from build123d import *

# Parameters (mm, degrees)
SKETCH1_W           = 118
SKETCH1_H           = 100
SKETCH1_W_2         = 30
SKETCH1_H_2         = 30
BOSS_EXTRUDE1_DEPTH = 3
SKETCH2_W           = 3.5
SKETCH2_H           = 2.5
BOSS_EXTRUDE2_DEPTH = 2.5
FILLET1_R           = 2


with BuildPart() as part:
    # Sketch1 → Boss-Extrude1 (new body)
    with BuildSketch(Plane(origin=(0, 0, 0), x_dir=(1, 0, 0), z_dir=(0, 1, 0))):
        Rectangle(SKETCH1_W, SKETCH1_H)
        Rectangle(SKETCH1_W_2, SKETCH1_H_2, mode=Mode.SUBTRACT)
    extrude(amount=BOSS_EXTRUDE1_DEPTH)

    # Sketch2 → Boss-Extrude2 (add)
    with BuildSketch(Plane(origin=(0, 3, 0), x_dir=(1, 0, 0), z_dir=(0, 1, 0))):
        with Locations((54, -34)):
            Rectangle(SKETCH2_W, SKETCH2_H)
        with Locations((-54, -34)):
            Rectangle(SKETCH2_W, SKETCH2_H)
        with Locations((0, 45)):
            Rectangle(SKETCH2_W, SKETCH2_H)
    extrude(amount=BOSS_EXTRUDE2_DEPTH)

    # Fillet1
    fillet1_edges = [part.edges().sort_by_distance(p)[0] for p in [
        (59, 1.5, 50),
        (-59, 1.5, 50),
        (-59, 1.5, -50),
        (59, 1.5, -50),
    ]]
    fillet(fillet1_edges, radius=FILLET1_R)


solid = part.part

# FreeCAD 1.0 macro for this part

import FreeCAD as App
import Part
import Sketcher
from FreeCAD import Vector
Q = App.Units.Quantity


def edges_at(feature, points):
    """Names of the edges that pass closest to the given points."""
    edges = feature.Shape.Edges
    near = lambda p: min(range(len(edges)), key=lambda i: edges[i].distToShape(Part.Vertex(*p))[0])
    return sorted({f"Edge{near(p) + 1}" for p in points})


def add_polygon(sketch, points):
    """Adds a closed chain of lines whose ends are joined by coincident constraints."""
    first, n = sketch.GeometryCount, len(points)
    for a, b in zip(points, points[1:] + points[:1]):
        sketch.addGeometry(Part.LineSegment(App.Vector(*a, 0), App.Vector(*b, 0)), False)
    for i in range(n):
        sketch.addConstraint(Sketcher.Constraint("Coincident", first + i, 2, first + (i + 1) % n, 1))

doc = App.newDocument("Part")
body = doc.addObject("PartDesign::Body", "Body")

sketch1 = doc.addObject("Sketcher::SketchObject", "Sketch")
body.addObject(sketch1)
sketch1.AttachmentSupport = (doc.XZ_Plane, [""])
sketch1.MapMode = "FlatFace"
add_polygon(sketch1, [(-59, -50), (-59, 50), (59, 50), (59, -50)])
add_polygon(sketch1, [(15, 15), (-15, 15), (-15, -15), (15, -15)])
sketch1.addConstraint([
    Sketcher.Constraint("Vertical", 0),
    Sketcher.Constraint("Horizontal", 1),
    Sketcher.Constraint("Vertical", 2),
    Sketcher.Constraint("Horizontal", 3),
    Sketcher.Constraint("Horizontal", 4),
    Sketcher.Constraint("Vertical", 5),
    Sketcher.Constraint("Horizontal", 6),
    Sketcher.Constraint("Vertical", 7),
    Sketcher.Constraint("Symmetric", 0, 2, 2, 2, -1, 1),
    Sketcher.Constraint("Symmetric", 4, 2, 6, 2, -1, 1),
    Sketcher.Constraint("Equal", 6, 5),
    Sketcher.Constraint("DistanceX", 1, 1, 1, 2, Q("118 mm")),
    Sketcher.Constraint("DistanceX", 4, 2, 4, 1, Q("30 mm")),
    Sketcher.Constraint("DistanceY", 0, 1, 0, 2, Q("100 mm")),
])
pad1 = doc.addObject("PartDesign::Pad", "Pad")
body.addObject(pad1)
pad1.Profile = sketch1
pad1.Length = 3
pad1.Reversed = True

sketch2 = doc.addObject("Sketcher::SketchObject", "Sketch001")
body.addObject(sketch2)
sketch2.AttachmentSupport = (doc.XZ_Plane, [""])
sketch2.MapMode = "FlatFace"
sketch2.AttachmentOffset = App.Placement(Vector(0, 0, -3), App.Rotation())
add_polygon(sketch2, [(52.25, 32.75), (52.25, 35.25), (55.75, 35.25), (55.75, 32.75)])
add_polygon(sketch2, [(-55.75, 32.75), (-55.75, 35.25), (-52.25, 35.25), (-52.25, 32.75)])
add_polygon(sketch2, [(-1.75, -46.25), (-1.75, -43.75), (1.75, -43.75), (1.75, -46.25)])
sketch2.addConstraint([
    Sketcher.Constraint("Vertical", 0),
    Sketcher.Constraint("Horizontal", 1),
    Sketcher.Constraint("Vertical", 2),
    Sketcher.Constraint("Horizontal", 3),
    Sketcher.Constraint("Vertical", 4),
    Sketcher.Constraint("Horizontal", 5),
    Sketcher.Constraint("Vertical", 6),
    Sketcher.Constraint("Horizontal", 7),
    Sketcher.Constraint("Vertical", 8),
    Sketcher.Constraint("Horizontal", 9),
    Sketcher.Constraint("Vertical", 10),
    Sketcher.Constraint("Horizontal", 11),
    Sketcher.Constraint("Symmetric", 1, 2, 4, 2, -2),
    Sketcher.Constraint("Symmetric", 3, 2, 6, 2, -2),
    Sketcher.Constraint("Equal", 7, 9),
    Sketcher.Constraint("Equal", 6, 8),
    Sketcher.Constraint("DistanceX", 1, 1, 1, 2, Q("3.5 mm")),
    Sketcher.Constraint("DistanceY", 0, 1, 0, 2, Q("2.5 mm")),
    Sketcher.Constraint("DistanceX", 4, 2, 0, 2, Q("108 mm")),
    Sketcher.Constraint("DistanceX", 8, 2, 3, 2, Q("54 mm")),
    Sketcher.Constraint("DistanceY", 8, 2, 5, 2, Q("79 mm")),
    Sketcher.Constraint("DistanceY", -1, 1, 0, 2, Q("35.25 mm")),
])
pad2 = doc.addObject("PartDesign::Pad", "Pad001")
body.addObject(pad2)
pad2.Profile = sketch2
pad2.Length = 2.5
pad2.Reversed = True
doc.recompute()

fillet = doc.addObject("PartDesign::Fillet", "Fillet")
body.addObject(fillet)
fillet.Base = (pad2, edges_at(pad2, [
    (59, 1.5, 50),
    (-59, 1.5, 50),
    (-59, 1.5, -50),
    (59, 1.5, -50),
]))
fillet.Radius = 2

doc.recompute()
